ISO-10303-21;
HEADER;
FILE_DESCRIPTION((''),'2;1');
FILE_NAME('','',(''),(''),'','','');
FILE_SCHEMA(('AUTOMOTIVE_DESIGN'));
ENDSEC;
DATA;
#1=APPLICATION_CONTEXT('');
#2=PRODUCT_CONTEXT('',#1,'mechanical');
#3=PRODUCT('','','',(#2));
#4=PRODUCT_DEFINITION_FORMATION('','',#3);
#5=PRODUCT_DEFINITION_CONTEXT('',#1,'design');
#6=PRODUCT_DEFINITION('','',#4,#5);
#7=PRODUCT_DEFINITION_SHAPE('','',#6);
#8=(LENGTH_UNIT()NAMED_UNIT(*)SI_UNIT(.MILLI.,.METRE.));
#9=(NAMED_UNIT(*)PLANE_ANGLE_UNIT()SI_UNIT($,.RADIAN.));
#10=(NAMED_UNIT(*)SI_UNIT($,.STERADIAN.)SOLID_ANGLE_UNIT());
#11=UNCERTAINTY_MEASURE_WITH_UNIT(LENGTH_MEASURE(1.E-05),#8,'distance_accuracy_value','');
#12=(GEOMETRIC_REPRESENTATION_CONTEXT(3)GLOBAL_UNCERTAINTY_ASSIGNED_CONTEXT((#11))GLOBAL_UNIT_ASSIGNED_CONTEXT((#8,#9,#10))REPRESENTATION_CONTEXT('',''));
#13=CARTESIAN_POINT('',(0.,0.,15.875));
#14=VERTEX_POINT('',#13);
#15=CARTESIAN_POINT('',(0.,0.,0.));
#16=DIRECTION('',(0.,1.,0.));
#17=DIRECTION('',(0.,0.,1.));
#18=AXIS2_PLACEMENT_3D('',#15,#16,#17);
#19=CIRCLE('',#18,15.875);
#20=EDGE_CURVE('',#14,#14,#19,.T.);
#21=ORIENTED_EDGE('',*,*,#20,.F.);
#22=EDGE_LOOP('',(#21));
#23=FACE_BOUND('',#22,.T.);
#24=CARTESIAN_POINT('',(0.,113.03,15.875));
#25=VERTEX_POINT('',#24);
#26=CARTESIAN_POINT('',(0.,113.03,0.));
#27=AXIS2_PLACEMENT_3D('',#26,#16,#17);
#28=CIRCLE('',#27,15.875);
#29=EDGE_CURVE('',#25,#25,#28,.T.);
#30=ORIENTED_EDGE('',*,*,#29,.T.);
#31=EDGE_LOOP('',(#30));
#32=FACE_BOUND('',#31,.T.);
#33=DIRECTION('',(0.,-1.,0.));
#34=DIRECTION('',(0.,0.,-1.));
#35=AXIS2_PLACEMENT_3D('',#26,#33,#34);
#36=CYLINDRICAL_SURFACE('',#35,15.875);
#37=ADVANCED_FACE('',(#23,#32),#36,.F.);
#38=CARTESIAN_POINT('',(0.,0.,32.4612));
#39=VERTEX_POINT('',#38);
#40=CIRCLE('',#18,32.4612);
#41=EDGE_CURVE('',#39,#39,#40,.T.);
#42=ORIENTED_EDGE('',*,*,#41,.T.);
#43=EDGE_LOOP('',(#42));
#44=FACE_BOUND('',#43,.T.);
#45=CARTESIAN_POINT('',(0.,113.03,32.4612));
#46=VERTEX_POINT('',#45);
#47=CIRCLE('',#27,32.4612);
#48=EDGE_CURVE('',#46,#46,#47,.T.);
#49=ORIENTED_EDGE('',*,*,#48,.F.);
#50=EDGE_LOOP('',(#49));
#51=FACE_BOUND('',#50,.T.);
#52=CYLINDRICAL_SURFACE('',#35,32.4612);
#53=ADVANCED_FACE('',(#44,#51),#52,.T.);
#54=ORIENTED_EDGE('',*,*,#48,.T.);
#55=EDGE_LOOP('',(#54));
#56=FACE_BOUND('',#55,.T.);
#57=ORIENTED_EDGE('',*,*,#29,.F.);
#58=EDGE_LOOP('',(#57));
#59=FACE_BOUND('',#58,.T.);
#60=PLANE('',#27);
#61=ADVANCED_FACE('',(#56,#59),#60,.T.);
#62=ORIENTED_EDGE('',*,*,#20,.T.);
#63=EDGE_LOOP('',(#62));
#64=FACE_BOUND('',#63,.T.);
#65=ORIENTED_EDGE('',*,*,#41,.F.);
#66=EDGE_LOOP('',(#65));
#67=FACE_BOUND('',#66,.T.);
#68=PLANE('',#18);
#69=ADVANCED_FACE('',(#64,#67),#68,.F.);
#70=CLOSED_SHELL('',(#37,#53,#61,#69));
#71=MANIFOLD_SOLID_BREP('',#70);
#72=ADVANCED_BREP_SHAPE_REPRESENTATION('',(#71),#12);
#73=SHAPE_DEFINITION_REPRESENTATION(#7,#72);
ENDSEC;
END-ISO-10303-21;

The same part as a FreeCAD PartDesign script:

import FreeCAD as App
import Part
import Sketcher
Q = App.Units.Quantity

doc = App.newDocument("Part")
body = doc.addObject("PartDesign::Body", "Body")

# Sketch on XZ plane
sketch1 = doc.addObject("Sketcher::SketchObject", "Sketch")
body.addObject(sketch1)
sketch1.AttachmentSupport = (doc.XZ_Plane, [""])
sketch1.MapMode = "FlatFace"
sketch1.addGeometry(Part.Circle(App.Vector(0, 0, 0), App.Vector(0, 0, 1), 32.4612), False)
sketch1.addGeometry(Part.Circle(App.Vector(0, 0, 0), App.Vector(0, 0, 1), 15.875), False)
sketch1.addConstraint(Sketcher.Constraint("Coincident", 0, 3, -1, 1))
sketch1.addConstraint(Sketcher.Constraint("Coincident", 1, 3, -1, 1))
sketch1.addConstraint(Sketcher.Constraint("Diameter", 1, Q("1.25 in")))
sketch1.addConstraint(Sketcher.Constraint("Diameter", 0, Q("2.556 in")))
pad1 = doc.addObject("PartDesign::Pad", "Pad")
body.addObject(pad1)
pad1.Profile = sketch1
pad1.Length = Q("4.45 in")
pad1.Reversed = True

doc.recompute()
